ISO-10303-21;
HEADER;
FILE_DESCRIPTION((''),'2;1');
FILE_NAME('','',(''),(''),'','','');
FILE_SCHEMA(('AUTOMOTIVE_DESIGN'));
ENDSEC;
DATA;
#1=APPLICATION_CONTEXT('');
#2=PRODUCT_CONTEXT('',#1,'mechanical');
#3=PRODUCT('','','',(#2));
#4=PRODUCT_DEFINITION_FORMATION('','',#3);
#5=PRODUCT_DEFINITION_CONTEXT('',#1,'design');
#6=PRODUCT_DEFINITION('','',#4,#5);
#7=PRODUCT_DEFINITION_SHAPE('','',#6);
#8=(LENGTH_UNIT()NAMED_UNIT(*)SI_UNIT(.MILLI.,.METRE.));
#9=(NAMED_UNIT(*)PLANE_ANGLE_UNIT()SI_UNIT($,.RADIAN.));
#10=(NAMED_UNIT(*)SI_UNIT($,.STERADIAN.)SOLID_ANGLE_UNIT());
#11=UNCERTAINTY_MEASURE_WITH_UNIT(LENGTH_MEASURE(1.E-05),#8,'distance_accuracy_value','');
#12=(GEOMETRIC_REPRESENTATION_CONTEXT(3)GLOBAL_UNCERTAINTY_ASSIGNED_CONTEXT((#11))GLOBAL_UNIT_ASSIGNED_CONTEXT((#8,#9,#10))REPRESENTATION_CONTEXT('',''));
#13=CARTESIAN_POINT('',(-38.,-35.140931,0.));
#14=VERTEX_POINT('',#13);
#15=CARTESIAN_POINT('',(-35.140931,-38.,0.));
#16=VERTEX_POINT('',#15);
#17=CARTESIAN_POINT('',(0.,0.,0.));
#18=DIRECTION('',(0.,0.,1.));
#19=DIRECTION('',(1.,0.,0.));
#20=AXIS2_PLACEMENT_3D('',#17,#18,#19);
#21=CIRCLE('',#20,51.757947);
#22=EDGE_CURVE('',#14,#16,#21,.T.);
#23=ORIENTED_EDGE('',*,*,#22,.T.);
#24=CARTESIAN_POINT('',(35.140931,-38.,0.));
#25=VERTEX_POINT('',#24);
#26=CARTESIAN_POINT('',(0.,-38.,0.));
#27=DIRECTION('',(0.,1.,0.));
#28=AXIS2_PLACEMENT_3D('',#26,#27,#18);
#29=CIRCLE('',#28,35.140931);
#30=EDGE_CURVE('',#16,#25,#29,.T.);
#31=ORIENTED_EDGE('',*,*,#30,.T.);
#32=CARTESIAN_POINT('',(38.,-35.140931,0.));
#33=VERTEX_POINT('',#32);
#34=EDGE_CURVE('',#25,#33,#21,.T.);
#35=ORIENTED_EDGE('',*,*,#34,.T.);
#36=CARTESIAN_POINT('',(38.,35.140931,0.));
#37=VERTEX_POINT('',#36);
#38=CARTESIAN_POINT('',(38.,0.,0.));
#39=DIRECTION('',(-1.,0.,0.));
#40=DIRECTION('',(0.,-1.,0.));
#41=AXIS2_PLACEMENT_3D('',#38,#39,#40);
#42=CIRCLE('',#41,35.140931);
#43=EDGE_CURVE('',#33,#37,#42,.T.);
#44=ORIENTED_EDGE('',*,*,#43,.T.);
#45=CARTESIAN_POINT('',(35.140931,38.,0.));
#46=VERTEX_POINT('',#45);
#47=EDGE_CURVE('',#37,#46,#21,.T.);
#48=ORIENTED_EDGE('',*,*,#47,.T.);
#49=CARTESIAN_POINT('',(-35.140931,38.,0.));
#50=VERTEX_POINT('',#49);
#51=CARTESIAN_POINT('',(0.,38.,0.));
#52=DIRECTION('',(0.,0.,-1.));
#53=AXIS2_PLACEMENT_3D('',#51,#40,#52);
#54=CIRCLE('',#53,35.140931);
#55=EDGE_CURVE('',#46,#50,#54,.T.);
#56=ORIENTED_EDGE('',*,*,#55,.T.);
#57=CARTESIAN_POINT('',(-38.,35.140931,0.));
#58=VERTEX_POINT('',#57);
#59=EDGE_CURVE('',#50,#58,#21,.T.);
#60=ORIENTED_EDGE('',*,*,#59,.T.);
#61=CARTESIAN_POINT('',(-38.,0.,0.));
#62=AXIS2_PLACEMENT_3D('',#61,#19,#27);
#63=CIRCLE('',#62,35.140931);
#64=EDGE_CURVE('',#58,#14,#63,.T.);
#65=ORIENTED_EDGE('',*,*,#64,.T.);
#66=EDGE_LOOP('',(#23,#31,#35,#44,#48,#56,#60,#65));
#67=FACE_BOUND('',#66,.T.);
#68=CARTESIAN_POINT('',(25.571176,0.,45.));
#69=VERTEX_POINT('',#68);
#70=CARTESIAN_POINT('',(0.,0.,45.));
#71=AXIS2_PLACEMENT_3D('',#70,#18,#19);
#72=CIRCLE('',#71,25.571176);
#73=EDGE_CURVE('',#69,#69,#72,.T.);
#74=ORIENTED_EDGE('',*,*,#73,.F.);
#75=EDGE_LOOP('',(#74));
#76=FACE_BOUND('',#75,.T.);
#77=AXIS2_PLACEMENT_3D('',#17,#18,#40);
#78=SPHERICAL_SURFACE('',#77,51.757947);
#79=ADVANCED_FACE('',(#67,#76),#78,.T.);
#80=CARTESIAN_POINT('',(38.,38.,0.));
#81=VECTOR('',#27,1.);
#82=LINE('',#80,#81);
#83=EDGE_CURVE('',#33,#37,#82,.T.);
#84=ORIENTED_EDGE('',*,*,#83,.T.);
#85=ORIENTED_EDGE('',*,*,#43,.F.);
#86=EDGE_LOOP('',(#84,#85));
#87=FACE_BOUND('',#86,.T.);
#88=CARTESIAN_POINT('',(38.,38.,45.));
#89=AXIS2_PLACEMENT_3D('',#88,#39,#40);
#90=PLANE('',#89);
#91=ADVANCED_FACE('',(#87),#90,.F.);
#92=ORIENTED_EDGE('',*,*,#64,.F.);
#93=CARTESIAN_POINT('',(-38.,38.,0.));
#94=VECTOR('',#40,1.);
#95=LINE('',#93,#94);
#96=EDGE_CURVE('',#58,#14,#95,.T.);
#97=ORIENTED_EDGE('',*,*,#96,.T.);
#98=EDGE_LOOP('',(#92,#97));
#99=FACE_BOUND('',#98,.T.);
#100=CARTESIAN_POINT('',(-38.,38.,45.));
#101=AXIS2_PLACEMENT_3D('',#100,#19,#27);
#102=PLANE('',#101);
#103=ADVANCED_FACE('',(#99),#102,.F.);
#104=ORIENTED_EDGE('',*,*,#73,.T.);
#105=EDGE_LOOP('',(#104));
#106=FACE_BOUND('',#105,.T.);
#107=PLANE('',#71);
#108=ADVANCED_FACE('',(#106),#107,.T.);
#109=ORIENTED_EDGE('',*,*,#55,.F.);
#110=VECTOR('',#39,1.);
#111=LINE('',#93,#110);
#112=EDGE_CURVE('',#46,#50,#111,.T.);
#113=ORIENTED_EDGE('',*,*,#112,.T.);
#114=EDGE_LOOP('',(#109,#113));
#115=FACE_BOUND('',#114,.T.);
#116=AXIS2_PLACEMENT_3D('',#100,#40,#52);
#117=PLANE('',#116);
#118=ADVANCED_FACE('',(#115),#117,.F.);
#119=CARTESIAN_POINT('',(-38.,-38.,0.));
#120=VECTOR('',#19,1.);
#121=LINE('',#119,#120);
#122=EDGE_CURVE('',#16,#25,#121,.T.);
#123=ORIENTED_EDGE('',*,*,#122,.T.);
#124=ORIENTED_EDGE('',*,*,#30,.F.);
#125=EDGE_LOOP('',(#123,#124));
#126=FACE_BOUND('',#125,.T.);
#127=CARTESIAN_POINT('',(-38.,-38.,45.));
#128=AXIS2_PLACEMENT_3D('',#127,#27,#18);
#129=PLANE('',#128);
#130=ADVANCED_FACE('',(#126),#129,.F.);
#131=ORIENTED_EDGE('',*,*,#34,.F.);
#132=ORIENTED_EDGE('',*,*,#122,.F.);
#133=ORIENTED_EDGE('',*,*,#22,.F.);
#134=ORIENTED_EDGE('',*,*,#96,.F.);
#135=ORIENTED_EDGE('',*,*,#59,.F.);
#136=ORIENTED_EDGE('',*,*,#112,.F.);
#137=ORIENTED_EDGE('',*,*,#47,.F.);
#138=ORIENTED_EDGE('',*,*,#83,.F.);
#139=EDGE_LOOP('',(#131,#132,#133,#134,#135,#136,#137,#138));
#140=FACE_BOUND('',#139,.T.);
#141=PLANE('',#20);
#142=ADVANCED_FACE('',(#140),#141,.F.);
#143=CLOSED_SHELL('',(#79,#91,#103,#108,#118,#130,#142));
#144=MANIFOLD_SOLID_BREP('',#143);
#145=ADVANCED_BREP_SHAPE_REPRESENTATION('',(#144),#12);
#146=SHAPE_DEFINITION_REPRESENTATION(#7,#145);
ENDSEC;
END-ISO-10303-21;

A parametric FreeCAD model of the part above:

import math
import FreeCAD as App
import Part
import Sketcher
from FreeCAD import Vector
Q = App.Units.Quantity

doc = App.newDocument("Part")
params = doc.addObject("Spreadsheet::Sheet", "Params")
for row, (alias, value) in enumerate([
    ("sketch1_width", "76 mm"),
    ("pad1_length", "45 mm"),
    ("groove_angle", "360 deg"),
], start=1):
    params.set(f"A{row}", alias)
    params.set(f"B{row}", "=" + value)
    params.setAlias(f"B{row}", alias)

body = doc.addObject("PartDesign::Body", "Body")

# Sketch on XY plane
sketch1 = body.newObject("Sketcher::SketchObject", "Sketch")
sketch1.AttachmentSupport = (doc.getObject("XY_Plane"), [""])
sketch1.MapMode = "FlatFace"
sketch1.addGeometry([
    Part.LineSegment(Vector(-38, 38, 0), Vector(-38, -38, 0)),
    Part.LineSegment(Vector(-38, -38, 0), Vector(38, -38, 0)),
    Part.LineSegment(Vector(38, -38, 0), Vector(38, 38, 0)),
    Part.LineSegment(Vector(38, 38, 0), Vector(-38, 38, 0)),
], False)
sketch1.addConstraint([
    Sketcher.Constraint("Coincident", 0, 2, 1, 1),
    Sketcher.Constraint("Coincident", 1, 2, 2, 1),
    Sketcher.Constraint("Coincident", 2, 2, 3, 1),
    Sketcher.Constraint("Coincident", 3, 2, 0, 1),
    Sketcher.Constraint("Vertical", 0),
    Sketcher.Constraint("Horizontal", 1),
    Sketcher.Constraint("Vertical", 2),
    Sketcher.Constraint("Horizontal", 3),
    Sketcher.Constraint("Symmetric", 0, 2, 2, 2, -1, 1),
    Sketcher.Constraint("Equal", 3, 0),
    Sketcher.Constraint("DistanceX", 1, 1, 1, 2, Q("76 mm")),
])
sketch1.setExpression("Constraints[10]", "Params.sketch1_width")
pad1 = body.newObject("PartDesign::Pad", "Pad")
pad1.Profile = sketch1
pad1.setExpression("Length", "Params.pad1_length")

# Sketch on YZ plane
sketch2 = body.newObject("Sketcher::SketchObject", "Sketch001")
sketch2.AttachmentSupport = (doc.getObject("YZ_Plane"), [""])
sketch2.MapMode = "FlatFace"
sketch2.addGeometry([
    Part.LineSegment(Vector(0, 105, 0), Vector(0, 52, 0)),
    Part.ArcOfCircle(Part.Circle(Vector(0, 0, 0), Vector(0, 0, 1), 52), math.radians(-90), math.radians(90)),
    Part.LineSegment(Vector(0, -52, 0), Vector(0, -105, 0)),
    Part.ArcOfCircle(Part.Circle(Vector(0, 0, 0), Vector(0, 0, 1), 105), math.radians(-90), math.radians(90)),
], False)
sketch2.addConstraint([
    Sketcher.Constraint("Coincident", 0, 2, 1, 2),
    Sketcher.Constraint("Coincident", 1, 1, 2, 1),
    Sketcher.Constraint("Coincident", 2, 2, 3, 1),
    Sketcher.Constraint("Coincident", 3, 2, 0, 1),
    Sketcher.Constraint("Vertical", 0),
    Sketcher.Constraint("Vertical", 2),
    Sketcher.Constraint("Coincident", 1, 3, -1, 1),
    Sketcher.Constraint("Coincident", 3, 3, -1, 1),
    Sketcher.Constraint("PointOnObject", 0, 2, -2),
    Sketcher.Constraint("PointOnObject", 1, 1, -2),
    Sketcher.Constraint("Radius", 3, Q("104.656839 mm")),
    Sketcher.Constraint("Radius", 1, Q("51.757947 mm")),
])
groove = body.newObject("PartDesign::Groove", "Groove")
groove.Profile = sketch2
groove.ReferenceAxis = (sketch2, ["V_Axis"])
groove.setExpression("Angle", "Params.groove_angle")

doc.recompute()
